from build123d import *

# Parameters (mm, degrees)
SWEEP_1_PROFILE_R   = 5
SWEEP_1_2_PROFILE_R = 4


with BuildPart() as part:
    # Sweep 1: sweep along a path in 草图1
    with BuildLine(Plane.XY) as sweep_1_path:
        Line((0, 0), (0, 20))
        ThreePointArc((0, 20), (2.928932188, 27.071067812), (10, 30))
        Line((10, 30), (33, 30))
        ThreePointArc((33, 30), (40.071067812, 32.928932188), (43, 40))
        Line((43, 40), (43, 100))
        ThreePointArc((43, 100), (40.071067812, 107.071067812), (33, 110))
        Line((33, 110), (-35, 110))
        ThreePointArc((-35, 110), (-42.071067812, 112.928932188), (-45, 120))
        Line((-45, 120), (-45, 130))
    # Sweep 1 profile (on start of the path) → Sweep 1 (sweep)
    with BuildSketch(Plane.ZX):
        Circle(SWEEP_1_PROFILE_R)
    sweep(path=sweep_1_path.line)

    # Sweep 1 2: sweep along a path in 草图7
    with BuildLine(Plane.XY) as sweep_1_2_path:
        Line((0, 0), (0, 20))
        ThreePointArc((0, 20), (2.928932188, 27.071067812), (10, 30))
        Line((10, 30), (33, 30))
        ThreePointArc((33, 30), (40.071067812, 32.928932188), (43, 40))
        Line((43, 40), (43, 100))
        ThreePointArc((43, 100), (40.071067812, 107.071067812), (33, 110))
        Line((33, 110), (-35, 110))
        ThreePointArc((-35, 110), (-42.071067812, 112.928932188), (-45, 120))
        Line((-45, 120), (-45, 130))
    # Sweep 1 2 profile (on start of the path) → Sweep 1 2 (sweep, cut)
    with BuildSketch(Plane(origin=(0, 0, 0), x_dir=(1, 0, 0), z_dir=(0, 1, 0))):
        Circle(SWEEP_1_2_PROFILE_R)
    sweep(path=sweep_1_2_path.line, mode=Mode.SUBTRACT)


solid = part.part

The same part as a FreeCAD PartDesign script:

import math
import FreeCAD as App
import Part
import Sketcher
from FreeCAD import Vector
Q = App.Units.Quantity

doc = App.newDocument("Part")
params = doc.addObject("Spreadsheet::Sheet", "Params")
for row, (alias, value) in enumerate([
    ("sketch1_diameter", "10 mm"),
    ("sketch2_radius", "10 mm"),
    ("sketch2_width", "23 mm"),
    ("sketch2_width2", "68 mm"),
    ("sketch2_height", "20 mm"),
    ("sketch2_height2", "60 mm"),
    ("sketch3_diameter", "8 mm"),
    ("sketch4_radius", "10 mm"),
    ("sketch4_width", "23 mm"),
    ("sketch4_width2", "68 mm"),
    ("sketch4_height", "20 mm"),
    ("sketch4_height2", "60 mm"),
], start=1):
    params.set(f"A{row}", alias)
    params.set(f"B{row}", "=" + value)
    params.setAlias(f"B{row}", alias)

body = doc.addObject("PartDesign::Body", "Body")

sketch1 = doc.addObject("Sketcher::SketchObject", "Sketch")
body.addObject(sketch1)
sketch1.AttachmentSupport = (doc.XZ_Plane, [""])
sketch1.MapMode = "FlatFace"
sketch1.addGeometry(Part.Circle(Vector(0, 0, 0), Vector(0, 0, 1), 5), False)
sketch1.addConstraint([
    Sketcher.Constraint("Coincident", 0, 3, -1, 1),
    Sketcher.Constraint("Diameter", 0, Q("10 mm")),
])
sketch1.setExpression("Constraints[1]", "Params.sketch1_diameter")

sketch2 = doc.addObject("Sketcher::SketchObject", "Sketch001")
body.addObject(sketch2)
sketch2.AttachmentSupport = (doc.XY_Plane, [""])
sketch2.MapMode = "FlatFace"
sketch2.addGeometry([
    Part.LineSegment(Vector(0, 0, 0), Vector(0, 20, 0)),
    Part.ArcOfCircle(Part.Circle(Vector(10, 20, 0), Vector(0, 0, 1), 10), math.radians(90), math.radians(180)),
    Part.LineSegment(Vector(10, 30, 0), Vector(33, 30, 0)),
    Part.ArcOfCircle(Part.Circle(Vector(33, 40, 0), Vector(0, 0, 1), 10), math.radians(-90), math.radians(0)),
    Part.LineSegment(Vector(43, 40, 0), Vector(43, 100, 0)),
    Part.ArcOfCircle(Part.Circle(Vector(33, 100, 0), Vector(0, 0, 1), 10), math.radians(0), math.radians(90)),
    Part.LineSegment(Vector(33, 110, 0), Vector(-35, 110, 0)),
    Part.ArcOfCircle(Part.Circle(Vector(-35, 120, 0), Vector(0, 0, 1), 10), math.radians(180), math.radians(270)),
    Part.LineSegment(Vector(-45, 120, 0), Vector(-45, 130, 0)),
], False)
sketch2.addConstraint([
    Sketcher.Constraint("Tangent", 0, 2, 1, 2),
    Sketcher.Constraint("Tangent", 1, 1, 2, 1),
    Sketcher.Constraint("Tangent", 2, 2, 3, 1),
    Sketcher.Constraint("Tangent", 3, 2, 4, 1),
    Sketcher.Constraint("Tangent", 4, 2, 5, 1),
    Sketcher.Constraint("Tangent", 5, 2, 6, 1),
    Sketcher.Constraint("Tangent", 6, 2, 7, 2),
    Sketcher.Constraint("Tangent", 7, 1, 8, 1),
    Sketcher.Constraint("Vertical", 0),
    Sketcher.Constraint("Horizontal", 2),
    Sketcher.Constraint("Vertical", 4),
    Sketcher.Constraint("Horizontal", 6),
    Sketcher.Constraint("Vertical", 8),
    Sketcher.Constraint("Coincident", 0, 1, -1, 1),
    Sketcher.Constraint("Equal", 1, 3),
    Sketcher.Constraint("Equal", 3, 5),
    Sketcher.Constraint("Equal", 5, 7),
    Sketcher.Constraint("Radius", 1, Q("10 mm")),
    Sketcher.Constraint("DistanceX", 2, 1, 2, 2, Q("23 mm")),
    Sketcher.Constraint("DistanceX", 6, 2, 6, 1, Q("68 mm")),
    Sketcher.Constraint("DistanceY", 0, 1, 0, 2, Q("20 mm")),
    Sketcher.Constraint("DistanceY", 4, 1, 4, 2, Q("60 mm")),
    Sketcher.Constraint("DistanceY", 8, 1, 8, 2, Q("10 mm")),
])
sketch2.setExpression("Constraints[17]", "Params.sketch2_radius")
sketch2.setExpression("Constraints[18]", "Params.sketch2_width")
sketch2.setExpression("Constraints[19]", "Params.sketch2_width2")
sketch2.setExpression("Constraints[20]", "Params.sketch2_height")
sketch2.setExpression("Constraints[21]", "Params.sketch2_height2")
doc.recompute()

additivepipe = doc.addObject("PartDesign::AdditivePipe", "AdditivePipe")
body.addObject(additivepipe)
additivepipe.Profile = sketch1
additivepipe.Spine = (sketch2, ["Edge1", "Edge2", "Edge3", "Edge4", "Edge5", "Edge6", "Edge7", "Edge8", "Edge9"])

sketch3 = doc.addObject("Sketcher::SketchObject", "Sketch002")
body.addObject(sketch3)
sketch3.AttachmentSupport = (doc.XZ_Plane, [""])
sketch3.MapMode = "FlatFace"
sketch3.addGeometry(Part.Circle(Vector(0, 0, 0), Vector(0, 0, 1), 4), False)
sketch3.addConstraint([
    Sketcher.Constraint("Coincident", 0, 3, -1, 1),
    Sketcher.Constraint("Diameter", 0, Q("8 mm")),
])
sketch3.setExpression("Constraints[1]", "Params.sketch3_diameter")

sketch4 = doc.addObject("Sketcher::SketchObject", "Sketch003")
body.addObject(sketch4)
sketch4.AttachmentSupport = (doc.XY_Plane, [""])
sketch4.MapMode = "FlatFace"
sketch4.addGeometry([
    Part.LineSegment(Vector(0, 0, 0), Vector(0, 20, 0)),
    Part.ArcOfCircle(Part.Circle(Vector(10, 20, 0), Vector(0, 0, 1), 10), math.radians(90), math.radians(180)),
    Part.LineSegment(Vector(10, 30, 0), Vector(33, 30, 0)),
    Part.ArcOfCircle(Part.Circle(Vector(33, 40, 0), Vector(0, 0, 1), 10), math.radians(-90), math.radians(0)),
    Part.LineSegment(Vector(43, 40, 0), Vector(43, 100, 0)),
    Part.ArcOfCircle(Part.Circle(Vector(33, 100, 0), Vector(0, 0, 1), 10), math.radians(0), math.radians(90)),
    Part.LineSegment(Vector(33, 110, 0), Vector(-35, 110, 0)),
    Part.ArcOfCircle(Part.Circle(Vector(-35, 120, 0), Vector(0, 0, 1), 10), math.radians(180), math.radians(270)),
    Part.LineSegment(Vector(-45, 120, 0), Vector(-45, 130, 0)),
], False)
sketch4.addConstraint([
    Sketcher.Constraint("Tangent", 0, 2, 1, 2),
    Sketcher.Constraint("Tangent", 1, 1, 2, 1),
    Sketcher.Constraint("Tangent", 2, 2, 3, 1),
    Sketcher.Constraint("Tangent", 3, 2, 4, 1),
    Sketcher.Constraint("Tangent", 4, 2, 5, 1),
    Sketcher.Constraint("Tangent", 5, 2, 6, 1),
    Sketcher.Constraint("Tangent", 6, 2, 7, 2),
    Sketcher.Constraint("Tangent", 7, 1, 8, 1),
    Sketcher.Constraint("Vertical", 0),
    Sketcher.Constraint("Horizontal", 2),
    Sketcher.Constraint("Vertical", 4),
    Sketcher.Constraint("Horizontal", 6),
    Sketcher.Constraint("Vertical", 8),
    Sketcher.Constraint("Coincident", 0, 1, -1, 1),
    Sketcher.Constraint("Equal", 1, 3),
    Sketcher.Constraint("Equal", 3, 5),
    Sketcher.Constraint("Equal", 5, 7),
    Sketcher.Constraint("Radius", 1, Q("10 mm")),
    Sketcher.Constraint("DistanceX", 2, 1, 2, 2, Q("23 mm")),
    Sketcher.Constraint("DistanceX", 6, 2, 6, 1, Q("68 mm")),
    Sketcher.Constraint("DistanceY", 0, 1, 0, 2, Q("20 mm")),
    Sketcher.Constraint("DistanceY", 4, 1, 4, 2, Q("60 mm")),
    Sketcher.Constraint("DistanceY", 8, 1, 8, 2, Q("10 mm")),
])
sketch4.setExpression("Constraints[17]", "Params.sketch4_radius")
sketch4.setExpression("Constraints[18]", "Params.sketch4_width")
sketch4.setExpression("Constraints[19]", "Params.sketch4_width2")
sketch4.setExpression("Constraints[20]", "Params.sketch4_height")
sketch4.setExpression("Constraints[21]", "Params.sketch4_height2")
doc.recompute()

subtractivepipe = doc.addObject("PartDesign::SubtractivePipe", "SubtractivePipe")
body.addObject(subtractivepipe)
subtractivepipe.Profile = sketch3
subtractivepipe.Spine = (sketch4, ["Edge1", "Edge2", "Edge3", "Edge4", "Edge5", "Edge6", "Edge7", "Edge8", "Edge9"])

doc.recompute()
